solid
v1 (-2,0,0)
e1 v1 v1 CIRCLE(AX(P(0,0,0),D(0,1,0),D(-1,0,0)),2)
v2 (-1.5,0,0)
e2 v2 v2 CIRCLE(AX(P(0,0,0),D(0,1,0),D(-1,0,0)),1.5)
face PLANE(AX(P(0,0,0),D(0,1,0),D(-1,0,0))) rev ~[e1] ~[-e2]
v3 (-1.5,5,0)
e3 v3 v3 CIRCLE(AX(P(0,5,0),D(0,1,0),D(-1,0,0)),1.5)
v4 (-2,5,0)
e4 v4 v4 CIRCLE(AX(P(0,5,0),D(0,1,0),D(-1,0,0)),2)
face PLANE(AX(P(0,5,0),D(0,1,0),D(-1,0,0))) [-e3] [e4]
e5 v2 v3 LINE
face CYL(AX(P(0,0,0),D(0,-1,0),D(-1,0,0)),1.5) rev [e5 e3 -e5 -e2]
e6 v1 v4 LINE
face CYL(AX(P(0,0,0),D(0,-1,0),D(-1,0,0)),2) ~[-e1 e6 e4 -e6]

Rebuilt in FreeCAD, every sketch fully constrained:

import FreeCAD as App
import Part
import Sketcher

V = App.Vector
Q = App.Units.Quantity

doc = App.newDocument("Part")
body = doc.addObject("PartDesign::Body", "Body")

# Sketch on XZ plane
sketch1 = body.newObject("Sketcher::SketchObject", "Sketch")
sketch1.AttachmentSupport = (doc.getObject("XZ_Plane"), [""])
sketch1.MapMode = "FlatFace"
sketch1.addGeometry(Part.Circle(V(0, 0, 0), V(0, 0, 1), 2), False)
sketch1.addGeometry(Part.Circle(V(0, 0, 0), V(0, 0, 1), 1.5), False)
sketch1.addConstraint(Sketcher.Constraint("Coincident", 0, 3, -1, 1))
sketch1.addConstraint(Sketcher.Constraint("Coincident", 1, 3, -1, 1))
sketch1.addConstraint(Sketcher.Constraint("Diameter", 0, Q("4 mm")))
sketch1.addConstraint(Sketcher.Constraint("Diameter", 1, Q("3 mm")))
pad1 = body.newObject("PartDesign::Pad", "Pad")
pad1.Profile = sketch1
pad1.Length = 5
pad1.Reversed = True

doc.recompute()
